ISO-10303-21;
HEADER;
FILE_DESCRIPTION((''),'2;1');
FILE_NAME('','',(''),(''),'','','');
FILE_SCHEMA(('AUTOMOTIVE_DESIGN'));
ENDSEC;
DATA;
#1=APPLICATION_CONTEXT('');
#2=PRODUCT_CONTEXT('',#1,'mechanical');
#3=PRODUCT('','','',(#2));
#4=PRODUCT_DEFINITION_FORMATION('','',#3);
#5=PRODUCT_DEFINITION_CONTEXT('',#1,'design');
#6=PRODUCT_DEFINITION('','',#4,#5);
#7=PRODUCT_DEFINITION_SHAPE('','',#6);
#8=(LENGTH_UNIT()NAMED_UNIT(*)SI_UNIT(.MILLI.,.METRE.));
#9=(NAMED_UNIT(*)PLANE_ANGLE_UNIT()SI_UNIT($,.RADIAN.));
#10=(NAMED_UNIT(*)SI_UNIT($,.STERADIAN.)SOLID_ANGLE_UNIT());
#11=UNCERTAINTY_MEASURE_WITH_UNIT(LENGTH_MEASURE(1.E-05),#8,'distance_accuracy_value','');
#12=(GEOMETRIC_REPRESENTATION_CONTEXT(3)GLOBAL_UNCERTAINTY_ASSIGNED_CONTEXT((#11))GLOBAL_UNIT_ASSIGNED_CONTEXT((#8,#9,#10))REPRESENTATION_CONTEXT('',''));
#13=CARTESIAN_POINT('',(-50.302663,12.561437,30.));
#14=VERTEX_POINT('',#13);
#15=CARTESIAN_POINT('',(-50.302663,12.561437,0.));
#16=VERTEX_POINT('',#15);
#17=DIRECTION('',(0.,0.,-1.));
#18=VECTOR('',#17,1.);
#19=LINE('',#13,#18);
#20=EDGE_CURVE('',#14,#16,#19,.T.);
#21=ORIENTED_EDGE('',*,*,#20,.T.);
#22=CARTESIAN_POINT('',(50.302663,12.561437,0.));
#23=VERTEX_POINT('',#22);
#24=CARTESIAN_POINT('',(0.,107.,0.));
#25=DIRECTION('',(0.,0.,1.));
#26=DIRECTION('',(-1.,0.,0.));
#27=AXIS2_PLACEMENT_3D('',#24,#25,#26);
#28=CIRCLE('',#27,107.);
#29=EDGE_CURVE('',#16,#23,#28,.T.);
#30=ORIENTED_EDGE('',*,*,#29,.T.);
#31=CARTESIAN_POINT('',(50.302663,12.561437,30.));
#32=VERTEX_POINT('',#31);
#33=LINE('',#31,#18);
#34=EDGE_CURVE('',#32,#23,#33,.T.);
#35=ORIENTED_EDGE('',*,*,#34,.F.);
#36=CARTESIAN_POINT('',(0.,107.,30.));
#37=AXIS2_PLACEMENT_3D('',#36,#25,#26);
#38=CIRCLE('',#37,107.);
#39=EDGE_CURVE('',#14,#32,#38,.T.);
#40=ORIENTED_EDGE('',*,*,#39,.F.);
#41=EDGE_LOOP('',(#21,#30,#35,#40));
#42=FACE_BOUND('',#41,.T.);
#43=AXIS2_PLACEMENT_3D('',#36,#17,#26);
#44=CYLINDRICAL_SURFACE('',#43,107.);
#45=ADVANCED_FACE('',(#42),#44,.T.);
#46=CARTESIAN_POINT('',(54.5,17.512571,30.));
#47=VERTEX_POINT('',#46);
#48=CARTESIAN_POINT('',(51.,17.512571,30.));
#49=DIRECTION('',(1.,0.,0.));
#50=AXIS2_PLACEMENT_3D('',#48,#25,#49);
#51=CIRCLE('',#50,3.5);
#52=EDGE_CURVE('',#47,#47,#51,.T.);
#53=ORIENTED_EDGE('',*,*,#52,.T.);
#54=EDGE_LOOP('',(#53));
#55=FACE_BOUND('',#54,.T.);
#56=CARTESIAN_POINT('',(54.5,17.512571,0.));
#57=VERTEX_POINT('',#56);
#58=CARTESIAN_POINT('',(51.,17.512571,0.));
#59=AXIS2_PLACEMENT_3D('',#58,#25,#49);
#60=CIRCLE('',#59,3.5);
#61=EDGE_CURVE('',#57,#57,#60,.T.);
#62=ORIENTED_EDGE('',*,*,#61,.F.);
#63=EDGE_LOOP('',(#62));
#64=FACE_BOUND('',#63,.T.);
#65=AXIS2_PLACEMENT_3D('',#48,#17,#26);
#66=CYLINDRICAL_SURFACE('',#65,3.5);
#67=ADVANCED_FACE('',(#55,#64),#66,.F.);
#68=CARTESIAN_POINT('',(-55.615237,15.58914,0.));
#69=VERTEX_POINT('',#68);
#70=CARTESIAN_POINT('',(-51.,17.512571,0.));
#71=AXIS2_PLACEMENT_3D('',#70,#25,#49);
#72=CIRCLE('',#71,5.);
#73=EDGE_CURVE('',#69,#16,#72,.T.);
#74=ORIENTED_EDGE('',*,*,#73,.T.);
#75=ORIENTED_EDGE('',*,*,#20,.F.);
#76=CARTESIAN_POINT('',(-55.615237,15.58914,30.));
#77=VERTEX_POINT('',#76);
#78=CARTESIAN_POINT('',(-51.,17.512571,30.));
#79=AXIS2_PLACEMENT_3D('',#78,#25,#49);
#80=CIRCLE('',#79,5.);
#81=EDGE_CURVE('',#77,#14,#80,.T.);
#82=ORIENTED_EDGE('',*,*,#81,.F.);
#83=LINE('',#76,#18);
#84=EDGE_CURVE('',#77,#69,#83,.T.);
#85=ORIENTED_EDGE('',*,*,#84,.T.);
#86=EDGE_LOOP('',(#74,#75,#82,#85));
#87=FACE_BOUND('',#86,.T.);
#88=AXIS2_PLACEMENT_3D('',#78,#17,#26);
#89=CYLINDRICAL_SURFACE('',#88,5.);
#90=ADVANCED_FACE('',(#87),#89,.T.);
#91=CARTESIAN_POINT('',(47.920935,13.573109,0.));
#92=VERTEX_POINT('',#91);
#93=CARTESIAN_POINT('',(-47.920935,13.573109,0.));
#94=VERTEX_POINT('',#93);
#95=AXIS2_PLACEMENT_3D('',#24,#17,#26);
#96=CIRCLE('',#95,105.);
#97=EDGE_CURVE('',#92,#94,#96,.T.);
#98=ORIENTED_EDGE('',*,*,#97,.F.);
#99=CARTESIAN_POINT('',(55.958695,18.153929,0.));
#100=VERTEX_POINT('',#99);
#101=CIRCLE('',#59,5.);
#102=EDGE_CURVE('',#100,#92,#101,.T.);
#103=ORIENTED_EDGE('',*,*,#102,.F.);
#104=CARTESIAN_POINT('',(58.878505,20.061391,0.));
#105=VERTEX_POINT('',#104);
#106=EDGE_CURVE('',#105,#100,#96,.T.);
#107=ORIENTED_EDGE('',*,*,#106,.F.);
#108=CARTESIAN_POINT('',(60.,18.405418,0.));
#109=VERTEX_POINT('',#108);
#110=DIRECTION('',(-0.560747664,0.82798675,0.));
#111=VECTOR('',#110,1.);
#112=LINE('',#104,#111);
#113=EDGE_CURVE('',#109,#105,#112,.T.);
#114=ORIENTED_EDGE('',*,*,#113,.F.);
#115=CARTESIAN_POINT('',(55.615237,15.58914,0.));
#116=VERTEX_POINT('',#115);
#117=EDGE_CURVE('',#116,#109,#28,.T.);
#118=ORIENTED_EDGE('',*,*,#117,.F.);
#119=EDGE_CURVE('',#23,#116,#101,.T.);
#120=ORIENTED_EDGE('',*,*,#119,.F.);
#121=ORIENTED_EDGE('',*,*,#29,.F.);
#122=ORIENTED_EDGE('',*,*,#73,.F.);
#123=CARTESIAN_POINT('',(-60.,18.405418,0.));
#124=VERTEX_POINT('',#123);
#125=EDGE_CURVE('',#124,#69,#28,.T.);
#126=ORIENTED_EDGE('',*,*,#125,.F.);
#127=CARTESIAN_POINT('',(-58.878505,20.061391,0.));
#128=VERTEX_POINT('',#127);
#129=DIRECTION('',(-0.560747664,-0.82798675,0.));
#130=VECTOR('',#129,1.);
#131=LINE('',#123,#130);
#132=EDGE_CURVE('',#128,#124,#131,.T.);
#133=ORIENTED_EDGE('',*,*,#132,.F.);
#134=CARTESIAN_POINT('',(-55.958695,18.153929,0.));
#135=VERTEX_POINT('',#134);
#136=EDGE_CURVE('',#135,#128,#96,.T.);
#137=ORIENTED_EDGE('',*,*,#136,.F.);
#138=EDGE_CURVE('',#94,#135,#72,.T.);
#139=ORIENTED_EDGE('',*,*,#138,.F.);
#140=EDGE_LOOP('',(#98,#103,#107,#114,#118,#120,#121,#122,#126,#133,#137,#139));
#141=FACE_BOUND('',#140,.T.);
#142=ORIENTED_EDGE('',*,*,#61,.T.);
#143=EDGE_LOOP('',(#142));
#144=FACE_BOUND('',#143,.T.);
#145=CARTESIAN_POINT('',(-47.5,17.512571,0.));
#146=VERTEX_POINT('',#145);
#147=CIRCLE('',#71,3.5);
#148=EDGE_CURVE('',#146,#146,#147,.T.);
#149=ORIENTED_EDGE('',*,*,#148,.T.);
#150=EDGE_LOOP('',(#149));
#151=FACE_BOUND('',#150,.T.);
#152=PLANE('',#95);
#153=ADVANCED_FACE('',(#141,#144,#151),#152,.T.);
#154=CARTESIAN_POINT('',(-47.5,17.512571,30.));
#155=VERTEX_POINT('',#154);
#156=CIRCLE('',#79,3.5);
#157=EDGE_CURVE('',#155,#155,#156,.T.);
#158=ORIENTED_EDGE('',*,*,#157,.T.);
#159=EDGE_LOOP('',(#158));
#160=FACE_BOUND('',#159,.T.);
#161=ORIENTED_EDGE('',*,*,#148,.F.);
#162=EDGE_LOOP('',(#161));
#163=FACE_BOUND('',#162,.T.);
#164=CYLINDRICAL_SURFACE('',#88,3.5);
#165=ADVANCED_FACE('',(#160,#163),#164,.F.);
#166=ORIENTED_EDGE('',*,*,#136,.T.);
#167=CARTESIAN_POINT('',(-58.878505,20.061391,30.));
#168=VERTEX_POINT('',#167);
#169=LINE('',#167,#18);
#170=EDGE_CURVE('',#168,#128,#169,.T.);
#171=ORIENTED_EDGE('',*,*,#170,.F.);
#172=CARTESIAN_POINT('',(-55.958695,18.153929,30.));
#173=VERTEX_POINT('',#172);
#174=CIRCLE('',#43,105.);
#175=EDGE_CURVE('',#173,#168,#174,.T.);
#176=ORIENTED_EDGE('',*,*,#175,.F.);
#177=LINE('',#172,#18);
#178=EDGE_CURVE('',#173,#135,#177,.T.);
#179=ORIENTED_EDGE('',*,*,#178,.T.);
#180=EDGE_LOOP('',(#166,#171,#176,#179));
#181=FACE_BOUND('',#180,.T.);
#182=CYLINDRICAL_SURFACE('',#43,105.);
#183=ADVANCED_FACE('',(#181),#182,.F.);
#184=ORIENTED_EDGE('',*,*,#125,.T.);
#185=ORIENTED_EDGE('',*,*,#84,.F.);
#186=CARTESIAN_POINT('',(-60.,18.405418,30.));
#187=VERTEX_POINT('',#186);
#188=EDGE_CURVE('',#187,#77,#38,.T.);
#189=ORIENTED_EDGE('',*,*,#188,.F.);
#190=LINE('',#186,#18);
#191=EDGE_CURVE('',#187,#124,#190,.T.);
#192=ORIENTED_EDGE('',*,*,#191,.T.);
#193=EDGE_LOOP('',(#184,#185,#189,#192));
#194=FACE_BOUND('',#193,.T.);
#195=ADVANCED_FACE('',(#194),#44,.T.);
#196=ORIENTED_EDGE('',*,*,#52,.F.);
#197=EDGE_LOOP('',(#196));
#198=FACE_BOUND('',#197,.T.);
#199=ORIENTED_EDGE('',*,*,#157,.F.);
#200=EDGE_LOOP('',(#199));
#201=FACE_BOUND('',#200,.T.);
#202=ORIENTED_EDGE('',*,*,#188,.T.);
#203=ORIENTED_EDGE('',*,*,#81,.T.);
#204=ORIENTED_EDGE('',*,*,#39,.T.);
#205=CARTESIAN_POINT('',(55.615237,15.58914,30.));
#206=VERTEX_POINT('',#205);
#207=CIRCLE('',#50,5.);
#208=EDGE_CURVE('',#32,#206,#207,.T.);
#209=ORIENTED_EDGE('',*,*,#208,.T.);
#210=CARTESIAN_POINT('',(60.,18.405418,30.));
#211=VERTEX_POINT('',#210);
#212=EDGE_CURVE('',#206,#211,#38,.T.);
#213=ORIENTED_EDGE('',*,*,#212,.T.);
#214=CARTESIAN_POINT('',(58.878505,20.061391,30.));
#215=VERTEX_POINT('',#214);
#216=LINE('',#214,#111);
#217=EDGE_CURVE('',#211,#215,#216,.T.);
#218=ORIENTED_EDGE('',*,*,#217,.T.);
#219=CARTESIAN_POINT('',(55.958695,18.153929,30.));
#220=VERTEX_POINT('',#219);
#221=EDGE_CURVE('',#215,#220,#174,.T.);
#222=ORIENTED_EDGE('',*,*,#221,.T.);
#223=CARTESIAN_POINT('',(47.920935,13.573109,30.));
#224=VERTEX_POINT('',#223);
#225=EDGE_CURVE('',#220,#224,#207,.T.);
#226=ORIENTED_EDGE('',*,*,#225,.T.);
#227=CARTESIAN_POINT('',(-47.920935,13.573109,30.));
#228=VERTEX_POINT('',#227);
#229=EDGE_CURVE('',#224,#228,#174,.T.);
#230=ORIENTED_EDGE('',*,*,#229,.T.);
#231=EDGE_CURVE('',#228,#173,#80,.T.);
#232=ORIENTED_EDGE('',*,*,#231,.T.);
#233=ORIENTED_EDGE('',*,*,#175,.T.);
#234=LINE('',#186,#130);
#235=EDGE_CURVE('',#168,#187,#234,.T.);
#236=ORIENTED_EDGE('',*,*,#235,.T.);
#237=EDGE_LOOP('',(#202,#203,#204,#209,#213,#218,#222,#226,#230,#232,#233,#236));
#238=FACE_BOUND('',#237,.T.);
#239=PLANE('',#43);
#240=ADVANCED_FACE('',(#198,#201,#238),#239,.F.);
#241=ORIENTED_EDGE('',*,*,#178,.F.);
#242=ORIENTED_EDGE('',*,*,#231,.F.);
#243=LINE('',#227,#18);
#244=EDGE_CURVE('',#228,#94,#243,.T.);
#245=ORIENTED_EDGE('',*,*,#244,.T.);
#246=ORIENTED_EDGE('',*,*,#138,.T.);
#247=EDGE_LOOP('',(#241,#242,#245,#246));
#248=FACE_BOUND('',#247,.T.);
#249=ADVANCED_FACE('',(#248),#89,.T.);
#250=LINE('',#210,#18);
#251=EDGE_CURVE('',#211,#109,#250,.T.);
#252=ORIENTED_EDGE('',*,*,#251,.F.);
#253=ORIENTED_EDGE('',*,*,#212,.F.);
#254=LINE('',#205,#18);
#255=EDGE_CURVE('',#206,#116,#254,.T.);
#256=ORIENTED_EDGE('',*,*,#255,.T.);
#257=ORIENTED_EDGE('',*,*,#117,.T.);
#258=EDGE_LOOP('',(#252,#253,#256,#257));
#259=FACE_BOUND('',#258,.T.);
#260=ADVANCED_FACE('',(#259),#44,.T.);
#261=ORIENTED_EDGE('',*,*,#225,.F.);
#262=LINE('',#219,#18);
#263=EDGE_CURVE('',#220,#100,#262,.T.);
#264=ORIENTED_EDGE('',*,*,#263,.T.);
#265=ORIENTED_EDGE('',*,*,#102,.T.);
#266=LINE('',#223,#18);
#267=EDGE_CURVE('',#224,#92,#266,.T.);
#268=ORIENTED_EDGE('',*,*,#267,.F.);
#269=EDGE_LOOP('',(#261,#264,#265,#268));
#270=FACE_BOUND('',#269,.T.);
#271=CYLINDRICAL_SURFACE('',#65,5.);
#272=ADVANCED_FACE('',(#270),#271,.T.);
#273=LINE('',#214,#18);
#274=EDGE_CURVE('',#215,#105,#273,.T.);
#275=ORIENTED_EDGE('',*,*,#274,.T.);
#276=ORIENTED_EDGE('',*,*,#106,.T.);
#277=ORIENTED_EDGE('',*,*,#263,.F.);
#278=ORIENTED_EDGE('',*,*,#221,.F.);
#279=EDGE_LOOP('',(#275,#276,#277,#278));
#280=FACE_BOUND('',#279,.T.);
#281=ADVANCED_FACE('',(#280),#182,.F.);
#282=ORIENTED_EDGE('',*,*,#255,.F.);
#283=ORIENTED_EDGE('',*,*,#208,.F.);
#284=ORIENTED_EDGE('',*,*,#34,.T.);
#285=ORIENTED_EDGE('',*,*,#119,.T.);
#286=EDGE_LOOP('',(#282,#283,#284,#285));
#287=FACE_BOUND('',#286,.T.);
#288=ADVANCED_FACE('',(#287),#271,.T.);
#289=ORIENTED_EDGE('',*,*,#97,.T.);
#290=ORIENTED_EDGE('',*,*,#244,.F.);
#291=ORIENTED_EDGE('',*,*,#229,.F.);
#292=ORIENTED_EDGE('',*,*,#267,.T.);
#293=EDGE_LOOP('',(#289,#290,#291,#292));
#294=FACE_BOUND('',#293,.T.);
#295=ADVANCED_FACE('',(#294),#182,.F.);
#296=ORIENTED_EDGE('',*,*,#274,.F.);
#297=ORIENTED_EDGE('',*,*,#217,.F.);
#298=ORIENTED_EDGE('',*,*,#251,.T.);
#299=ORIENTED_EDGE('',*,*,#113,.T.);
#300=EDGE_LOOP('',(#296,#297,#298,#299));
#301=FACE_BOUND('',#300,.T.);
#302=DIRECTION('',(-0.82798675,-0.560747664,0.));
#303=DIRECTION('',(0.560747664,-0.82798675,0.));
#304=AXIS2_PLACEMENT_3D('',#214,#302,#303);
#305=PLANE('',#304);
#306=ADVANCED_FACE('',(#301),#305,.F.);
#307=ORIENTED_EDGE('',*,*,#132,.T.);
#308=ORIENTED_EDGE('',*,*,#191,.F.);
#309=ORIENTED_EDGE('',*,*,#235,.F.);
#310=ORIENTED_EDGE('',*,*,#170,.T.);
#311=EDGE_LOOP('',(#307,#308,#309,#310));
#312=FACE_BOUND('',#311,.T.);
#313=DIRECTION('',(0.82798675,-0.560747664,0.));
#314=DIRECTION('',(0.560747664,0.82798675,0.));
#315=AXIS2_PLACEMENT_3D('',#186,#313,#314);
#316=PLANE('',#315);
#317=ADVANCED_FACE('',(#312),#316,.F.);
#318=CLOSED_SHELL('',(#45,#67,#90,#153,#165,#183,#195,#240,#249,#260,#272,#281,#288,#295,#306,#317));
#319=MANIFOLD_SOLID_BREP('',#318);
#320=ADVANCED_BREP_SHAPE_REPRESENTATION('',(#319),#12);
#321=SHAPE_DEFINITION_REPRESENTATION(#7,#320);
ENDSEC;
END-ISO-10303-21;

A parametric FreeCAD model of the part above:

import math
import FreeCAD as App
import Part
import Sketcher
Q = App.Units.Quantity

doc = App.newDocument("Part")
body = doc.addObject("PartDesign::Body", "Body")

# Sketch on XY plane
sketch1 = doc.addObject("Sketcher::SketchObject", "Sketch")
body.addObject(sketch1)
sketch1.AttachmentSupport = (doc.XY_Plane, [""])
sketch1.MapMode = "FlatFace"
sketch1.addGeometry([
    Part.LineSegment(App.Vector(-58.9, 20.1, 0), App.Vector(-60, 18.4, 0)),  # 0
    Part.ArcOfCircle(Part.Circle(App.Vector(0, 107, 0), App.Vector(0, 0, 1), 107), math.radians(-124.11), math.radians(-121.32)),  # 1
    Part.ArcOfCircle(Part.Circle(App.Vector(-51, 17.5, 0), App.Vector(0, 0, 1), 5), math.radians(-157), math.radians(-82)),  # 2
    Part.ArcOfCircle(Part.Circle(App.Vector(0, 107, 0), App.Vector(0, 0, 1), 107), math.radians(-118), math.radians(-62)),  # 3
    Part.ArcOfCircle(Part.Circle(App.Vector(51, 17.5, 0), App.Vector(0, 0, 1), 5), math.radians(-98), math.radians(-23)),  # 4
    Part.ArcOfCircle(Part.Circle(App.Vector(0, 107, 0), App.Vector(0, 0, 1), 107), math.radians(-58.68), math.radians(-55.89)),  # 5
    Part.LineSegment(App.Vector(60, 18.4, 0), App.Vector(58.9, 20.1, 0)),  # 6
    Part.ArcOfCircle(Part.Circle(App.Vector(0, 107, 0), App.Vector(0, 0, 1), 105), math.radians(-57.8), math.radians(-55.89)),  # 7
    Part.ArcOfCircle(Part.Circle(App.Vector(51, 17.5, 0), App.Vector(0, 0, 1), 5), math.radians(7), math.radians(232)),  # 8
    Part.ArcOfCircle(Part.Circle(App.Vector(0, 107, 0), App.Vector(0, 0, 1), 105), math.radians(-117), math.radians(-63)),  # 9
    Part.ArcOfCircle(Part.Circle(App.Vector(-51, 17.5, 0), App.Vector(0, 0, 1), 5), math.radians(-52), math.radians(173)),  # 10
    Part.ArcOfCircle(Part.Circle(App.Vector(0, 107, 0), App.Vector(0, 0, 1), 105), math.radians(-124.11), math.radians(-122.2)),  # 11
    Part.Circle(App.Vector(51, 17.5, 0), App.Vector(0, 0, 1), 3.5),  # 12
    Part.Circle(App.Vector(-51, 17.5, 0), App.Vector(0, 0, 1), 3.5),  # 13
], False)
sketch1.addConstraint([
    Sketcher.Constraint("Coincident", 0, 2, 1, 1),
    Sketcher.Constraint("Coincident", 1, 2, 2, 1),
    Sketcher.Constraint("Coincident", 2, 2, 3, 1),
    Sketcher.Constraint("Coincident", 3, 2, 4, 1),
    Sketcher.Constraint("Coincident", 4, 2, 5, 1),
    Sketcher.Constraint("Coincident", 5, 2, 6, 1),
    Sketcher.Constraint("Coincident", 6, 2, 7, 2),
    Sketcher.Constraint("Coincident", 7, 1, 8, 1),
    Sketcher.Constraint("Coincident", 8, 2, 9, 2),
    Sketcher.Constraint("Coincident", 9, 1, 10, 1),
    Sketcher.Constraint("Coincident", 10, 2, 11, 2),
    Sketcher.Constraint("Coincident", 11, 1, 0, 1),
    Sketcher.Constraint("Coincident", 3, 3, 1, 3),
    Sketcher.Constraint("Coincident", 5, 3, 1, 3),
    Sketcher.Constraint("Coincident", 7, 3, 1, 3),
    Sketcher.Constraint("Coincident", 8, 3, 4, 3),
    Sketcher.Constraint("Coincident", 9, 3, 1, 3),
    Sketcher.Constraint("Coincident", 10, 3, 2, 3),
    Sketcher.Constraint("Coincident", 11, 3, 1, 3),
    Sketcher.Constraint("Coincident", 12, 3, 4, 3),
    Sketcher.Constraint("Coincident", 13, 3, 2, 3),
    Sketcher.Constraint("Equal", 1, 3),
    Sketcher.Constraint("Equal", 2, 4),
    Sketcher.Constraint("Equal", 3, 5),
    Sketcher.Constraint("Equal", 4, 8),
    Sketcher.Constraint("Equal", 7, 9),
    Sketcher.Constraint("Equal", 8, 10),
    Sketcher.Constraint("Equal", 9, 11),
    Sketcher.Constraint("Equal", 12, 13),
    Sketcher.Constraint("Symmetric", 2, 3, 4, 3, -2),
    Sketcher.Constraint("Symmetric", 0, 2, 5, 2, -2),
    Sketcher.Constraint("Horizontal", 6, 2, 11, 1),
    Sketcher.Constraint("Diameter", 12, Q("7 mm")),
    Sketcher.Constraint("Radius", 1, Q("106.999998 mm")),
    Sketcher.Constraint("Radius", 2, Q("5 mm")),
    Sketcher.Constraint("Radius", 7, Q("104.999999 mm")),
    Sketcher.Constraint("DistanceY", -1, 1, 1, 3, Q("106.999998 mm")),
    Sketcher.Constraint("DistanceX", 2, 3, -1, 1, Q("51 mm")),
    Sketcher.Constraint("DistanceX", 0, 2, -1, 1, Q("60 mm")),
    Sketcher.Constraint("DistanceX", 2, 2, 4, 2, Q("105.9179 mm")),
    Sketcher.Constraint("DistanceY", -1, 1, 6, 2, Q("20.061391 mm")),
])
pad1 = doc.addObject("PartDesign::Pad", "Pad")
body.addObject(pad1)
pad1.Profile = sketch1
pad1.Length = 30

doc.recompute()
